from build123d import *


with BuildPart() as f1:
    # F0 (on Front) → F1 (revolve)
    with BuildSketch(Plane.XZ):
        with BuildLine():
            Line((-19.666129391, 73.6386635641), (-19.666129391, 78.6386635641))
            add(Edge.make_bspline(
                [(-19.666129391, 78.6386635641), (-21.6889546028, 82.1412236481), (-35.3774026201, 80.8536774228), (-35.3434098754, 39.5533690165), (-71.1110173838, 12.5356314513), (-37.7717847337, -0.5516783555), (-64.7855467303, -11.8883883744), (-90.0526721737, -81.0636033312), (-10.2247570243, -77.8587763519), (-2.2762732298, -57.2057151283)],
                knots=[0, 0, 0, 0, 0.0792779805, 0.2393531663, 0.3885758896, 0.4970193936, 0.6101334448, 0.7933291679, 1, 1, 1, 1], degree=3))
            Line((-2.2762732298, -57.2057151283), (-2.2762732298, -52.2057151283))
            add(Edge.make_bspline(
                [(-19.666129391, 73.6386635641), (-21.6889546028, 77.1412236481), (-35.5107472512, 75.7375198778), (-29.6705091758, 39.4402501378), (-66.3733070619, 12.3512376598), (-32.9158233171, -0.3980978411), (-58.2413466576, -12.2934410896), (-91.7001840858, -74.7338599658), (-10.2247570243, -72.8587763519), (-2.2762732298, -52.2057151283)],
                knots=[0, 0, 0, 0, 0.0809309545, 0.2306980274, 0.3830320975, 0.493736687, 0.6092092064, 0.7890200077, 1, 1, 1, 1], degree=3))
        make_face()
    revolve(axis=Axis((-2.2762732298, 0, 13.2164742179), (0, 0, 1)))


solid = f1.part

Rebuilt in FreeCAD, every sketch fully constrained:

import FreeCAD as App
import Part
import Sketcher
Q = App.Units.Quantity

doc = App.newDocument("Part")
body = doc.addObject("PartDesign::Body", "Body")

sketch1 = body.newObject("Sketcher::SketchObject", "Sketch")
sketch1.AttachmentSupport = (doc.getObject("XZ_Plane"), [""])
sketch1.MapMode = "FlatFace"
sketch1.addGeometry(Part.LineSegment(App.Vector(-19.666129, 73.638664, 0), App.Vector(-19.666129, 78.638664, 0)), False)
sketch1.addGeometry(Part.BSplineCurve([App.Vector(-19.666129, 78.638664, 0), App.Vector(-21.688955, 82.141224, 0), App.Vector(-35.377403, 80.853677, 0), App.Vector(-35.34341, 39.553369, 0), App.Vector(-71.111017, 12.535631, 0), App.Vector(-37.771785, -0.551678, 0), App.Vector(-64.785547, -11.888388, 0), App.Vector(-90.052672, -81.063603, 0), App.Vector(-10.224757, -77.858776, 0), App.Vector(-2.276273, -57.205715, 0)], [4, 1, 1, 1, 1, 1, 1, 4], [0, 0.07927798, 0.239353166, 0.38857589, 0.497019394, 0.610133445, 0.793329168, 1], False, 3, [1, 1, 1, 1, 1, 1, 1, 1, 1, 1], False), False)
sketch1.addGeometry(Part.LineSegment(App.Vector(-2.276273, -57.205715, 0), App.Vector(-2.276273, -52.205715, 0)), False)
sketch1.addGeometry(Part.BSplineCurve([App.Vector(-19.666129, 73.638664, 0), App.Vector(-21.688955, 77.141224, 0), App.Vector(-35.510747, 75.73752, 0), App.Vector(-29.670509, 39.44025, 0), App.Vector(-66.373307, 12.351238, 0), App.Vector(-32.915823, -0.398098, 0), App.Vector(-58.241347, -12.293441, 0), App.Vector(-91.700184, -74.73386, 0), App.Vector(-10.224757, -72.858776, 0), App.Vector(-2.276273, -52.205715, 0)], [4, 1, 1, 1, 1, 1, 1, 4], [0, 0.080930954, 0.230698027, 0.383032098, 0.493736687, 0.609209206, 0.789020008, 1], False, 3, [1, 1, 1, 1, 1, 1, 1, 1, 1, 1], False), False)
sketch1.addGeometry(Part.LineSegment(App.Vector(-2.276273, -57.205715, 0), App.Vector(-2.276273, 78.638664, 0)), True)
sketch1.addConstraint(Sketcher.Constraint("Block", 1))
sketch1.addConstraint(Sketcher.Constraint("Block", 3))
sketch1.addConstraint(Sketcher.Constraint("Coincident", 0, 2, 1, 1))
sketch1.addConstraint(Sketcher.Constraint("Coincident", 1, 2, 2, 1))
sketch1.addConstraint(Sketcher.Constraint("Coincident", 2, 2, 3, 2))
sketch1.addConstraint(Sketcher.Constraint("Coincident", 3, 1, 0, 1))
sketch1.addConstraint(Sketcher.Constraint("Vertical", 4))
sketch1.addConstraint(Sketcher.Constraint("Horizontal", 0, 2, 4, 2))
sketch1.addConstraint(Sketcher.Constraint("Vertical", 2, 2, 4, 1))
sketch1.addConstraint(Sketcher.Constraint("DistanceY", 4, 1, 2, 2, Q("5 mm")))
revolution = body.newObject("PartDesign::Revolution", "Revolution")
revolution.Profile = sketch1
revolution.ReferenceAxis = (sketch1, ["Axis0"])
revolution.Angle = 360

doc.recompute()
